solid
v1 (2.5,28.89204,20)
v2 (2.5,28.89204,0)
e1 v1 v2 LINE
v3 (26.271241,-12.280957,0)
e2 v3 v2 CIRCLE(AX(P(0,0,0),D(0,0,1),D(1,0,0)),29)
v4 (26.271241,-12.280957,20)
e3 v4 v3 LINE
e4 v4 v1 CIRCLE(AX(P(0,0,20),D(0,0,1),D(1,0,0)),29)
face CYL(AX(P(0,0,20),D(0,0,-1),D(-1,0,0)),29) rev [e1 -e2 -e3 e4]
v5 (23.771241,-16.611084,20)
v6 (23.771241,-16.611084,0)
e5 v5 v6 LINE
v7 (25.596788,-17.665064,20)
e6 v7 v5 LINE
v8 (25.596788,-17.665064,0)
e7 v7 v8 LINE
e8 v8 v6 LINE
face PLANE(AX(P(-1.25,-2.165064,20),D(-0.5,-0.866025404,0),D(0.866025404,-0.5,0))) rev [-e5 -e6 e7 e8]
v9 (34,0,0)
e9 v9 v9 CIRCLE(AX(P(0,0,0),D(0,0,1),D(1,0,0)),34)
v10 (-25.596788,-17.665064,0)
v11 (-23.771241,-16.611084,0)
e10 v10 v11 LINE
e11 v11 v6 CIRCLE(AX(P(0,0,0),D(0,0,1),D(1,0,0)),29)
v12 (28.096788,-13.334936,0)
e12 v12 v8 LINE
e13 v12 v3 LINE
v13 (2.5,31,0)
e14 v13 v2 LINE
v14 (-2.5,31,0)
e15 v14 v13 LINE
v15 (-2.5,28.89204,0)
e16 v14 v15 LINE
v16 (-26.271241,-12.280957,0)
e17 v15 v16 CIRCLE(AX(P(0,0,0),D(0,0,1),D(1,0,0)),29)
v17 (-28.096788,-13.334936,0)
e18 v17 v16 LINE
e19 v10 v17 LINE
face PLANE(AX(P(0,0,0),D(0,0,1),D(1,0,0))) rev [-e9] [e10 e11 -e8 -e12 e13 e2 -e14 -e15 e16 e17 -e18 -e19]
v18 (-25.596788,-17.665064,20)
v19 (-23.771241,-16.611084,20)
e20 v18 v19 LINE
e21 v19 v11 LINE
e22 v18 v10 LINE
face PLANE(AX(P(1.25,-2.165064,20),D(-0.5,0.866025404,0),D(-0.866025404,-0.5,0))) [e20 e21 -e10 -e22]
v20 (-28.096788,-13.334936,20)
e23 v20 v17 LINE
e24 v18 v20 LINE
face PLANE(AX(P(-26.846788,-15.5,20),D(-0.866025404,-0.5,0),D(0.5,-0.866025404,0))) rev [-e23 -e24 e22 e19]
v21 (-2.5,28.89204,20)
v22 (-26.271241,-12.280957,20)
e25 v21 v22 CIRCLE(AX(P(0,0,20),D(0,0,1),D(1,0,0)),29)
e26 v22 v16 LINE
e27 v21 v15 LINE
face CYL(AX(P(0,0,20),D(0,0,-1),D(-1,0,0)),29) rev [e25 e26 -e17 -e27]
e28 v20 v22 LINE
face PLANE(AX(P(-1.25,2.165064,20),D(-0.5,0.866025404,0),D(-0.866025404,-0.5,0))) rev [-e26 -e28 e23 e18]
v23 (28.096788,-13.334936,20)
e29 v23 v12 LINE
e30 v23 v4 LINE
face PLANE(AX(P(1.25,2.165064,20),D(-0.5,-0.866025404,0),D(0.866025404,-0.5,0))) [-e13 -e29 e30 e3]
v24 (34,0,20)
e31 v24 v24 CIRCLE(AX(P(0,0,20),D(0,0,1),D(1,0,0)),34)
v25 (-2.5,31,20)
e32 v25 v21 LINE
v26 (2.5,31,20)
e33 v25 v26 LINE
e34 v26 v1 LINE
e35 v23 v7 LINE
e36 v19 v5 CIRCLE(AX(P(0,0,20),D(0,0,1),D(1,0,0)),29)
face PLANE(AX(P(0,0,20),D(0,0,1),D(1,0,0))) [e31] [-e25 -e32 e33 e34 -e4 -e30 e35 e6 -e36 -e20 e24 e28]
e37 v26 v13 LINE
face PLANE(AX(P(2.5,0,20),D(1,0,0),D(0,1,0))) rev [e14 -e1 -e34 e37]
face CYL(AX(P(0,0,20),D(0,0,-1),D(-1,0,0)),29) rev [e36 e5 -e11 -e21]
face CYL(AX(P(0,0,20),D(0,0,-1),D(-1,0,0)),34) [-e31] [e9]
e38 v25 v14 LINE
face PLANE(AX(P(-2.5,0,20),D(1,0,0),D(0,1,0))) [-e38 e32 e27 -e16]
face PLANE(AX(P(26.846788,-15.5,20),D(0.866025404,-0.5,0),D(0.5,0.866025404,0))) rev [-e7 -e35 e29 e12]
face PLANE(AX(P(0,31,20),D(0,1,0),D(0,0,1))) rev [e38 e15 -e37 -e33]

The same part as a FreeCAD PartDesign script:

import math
import FreeCAD as App
import Part
import Sketcher
from FreeCAD import Vector
Q = App.Units.Quantity

doc = App.newDocument("Part")
body = doc.addObject("PartDesign::Body", "Body")

# Sketch on XY plane
sketch1 = doc.addObject("Sketcher::SketchObject", "Sketch")
body.addObject(sketch1)
sketch1.AttachmentSupport = (doc.XY_Plane, [""])
sketch1.MapMode = "FlatFace"
sketch1.addGeometry([
    Part.ArcOfCircle(Part.Circle(Vector(0, 0, 0), Vector(0, 0, 1), 34), math.radians(0), math.radians(90)),  # 0
    Part.ArcOfCircle(Part.Circle(Vector(0, 0, 0), Vector(0, 0, 1), 34), math.radians(90), math.radians(360)),  # 1
    Part.LineSegment(Vector(-2.5, 28.9, 0), Vector(-2.5, 31, 0)),  # 2
    Part.LineSegment(Vector(-2.5, 31, 0), Vector(2.5, 31, 0)),  # 3
    Part.LineSegment(Vector(2.5, 31, 0), Vector(2.5, 28.9, 0)),  # 4
    Part.ArcOfCircle(Part.Circle(Vector(0, 0, 0), Vector(0, 0, 1), 29), math.radians(0), math.radians(85)),  # 5
    Part.ArcOfCircle(Part.Circle(Vector(0, 0, 0), Vector(0, 0, 1), 29), math.radians(-25), math.radians(0)),  # 6
    Part.LineSegment(Vector(26.3, -12.3, 0), Vector(28.1, -13.3, 0)),  # 7
    Part.LineSegment(Vector(28.1, -13.3, 0), Vector(25.6, -17.7, 0)),  # 8
    Part.LineSegment(Vector(25.6, -17.7, 0), Vector(23.8, -16.6, 0)),  # 9
    Part.ArcOfCircle(Part.Circle(Vector(0, 0, 0), Vector(0, 0, 1), 29), math.radians(-145), math.radians(-35)),  # 10
    Part.LineSegment(Vector(-23.8, -16.6, 0), Vector(-25.6, -17.7, 0)),  # 11
    Part.LineSegment(Vector(-25.6, -17.7, 0), Vector(-28.1, -13.3, 0)),  # 12
    Part.LineSegment(Vector(-28.1, -13.3, 0), Vector(-26.3, -12.3, 0)),  # 13
    Part.ArcOfCircle(Part.Circle(Vector(0, 0, 0), Vector(0, 0, 1), 29), math.radians(95), math.radians(205)),  # 14
], False)
sketch1.addConstraint([
    Sketcher.Constraint("Tangent", 0, 1, 1, 2),
    Sketcher.Constraint("Coincident", 1, 1, 0, 2),
    Sketcher.Constraint("Coincident", 2, 2, 3, 1),
    Sketcher.Constraint("Coincident", 3, 2, 4, 1),
    Sketcher.Constraint("Coincident", 4, 2, 5, 2),
    Sketcher.Constraint("Tangent", 5, 1, 6, 2),
    Sketcher.Constraint("Coincident", 6, 1, 7, 1),
    Sketcher.Constraint("Coincident", 7, 2, 8, 1),
    Sketcher.Constraint("Coincident", 8, 2, 9, 1),
    Sketcher.Constraint("Coincident", 9, 2, 10, 2),
    Sketcher.Constraint("Coincident", 10, 1, 11, 1),
    Sketcher.Constraint("Coincident", 11, 2, 12, 1),
    Sketcher.Constraint("Coincident", 12, 2, 13, 1),
    Sketcher.Constraint("Coincident", 13, 2, 14, 2),
    Sketcher.Constraint("Coincident", 14, 1, 2, 1),
    Sketcher.Constraint("Vertical", 2),
    Sketcher.Constraint("Horizontal", 3),
    Sketcher.Constraint("Vertical", 4),
    Sketcher.Constraint("Coincident", 0, 3, -1, 1),
    Sketcher.Constraint("Coincident", 5, 3, -1, 1),
    Sketcher.Constraint("Coincident", 10, 3, -1, 1),
    Sketcher.Constraint("Coincident", 14, 3, -1, 1),
    Sketcher.Constraint("Equal", 5, 6),
    Sketcher.Constraint("Equal", 6, 10),
    Sketcher.Constraint("Equal", 10, 14),
    Sketcher.Constraint("Symmetric", 8, 2, 11, 2, -2),
    Sketcher.Constraint("Symmetric", 7, 2, 12, 2, -2),
    Sketcher.Constraint("PointOnObject", 0, 1, -1),
    Sketcher.Constraint("PointOnObject", 1, 1, -2),
    Sketcher.Constraint("PointOnObject", 5, 1, -1),
    Sketcher.Constraint("Perpendicular", 7, 8),
    Sketcher.Constraint("Perpendicular", 8, 9),
    Sketcher.Constraint("Perpendicular", 11, 12),
    Sketcher.Constraint("Perpendicular", 12, 13),
    Sketcher.Constraint("Horizontal", 4, 2, 14, 1),
    Sketcher.Constraint("Equal", 7, 9),
    Sketcher.Constraint("Radius", 0, 34.0),
    Sketcher.Constraint("Radius", 5, 29.0),
    Sketcher.Constraint("DistanceX", 3, 1, 3, 2, 5.0),
    Sketcher.Constraint("Angle", 7, Q("-30 deg")),
    Sketcher.Constraint("Distance", 8, 5.0),
    Sketcher.Constraint("DistanceY", -1, 1, 2, 2, 31.0),
    Sketcher.Constraint("Distance", 7, 2.10796),
])
pad1 = doc.addObject("PartDesign::Pad", "Pad")
body.addObject(pad1)
pad1.Profile = sketch1
pad1.Length = 20

doc.recompute()
